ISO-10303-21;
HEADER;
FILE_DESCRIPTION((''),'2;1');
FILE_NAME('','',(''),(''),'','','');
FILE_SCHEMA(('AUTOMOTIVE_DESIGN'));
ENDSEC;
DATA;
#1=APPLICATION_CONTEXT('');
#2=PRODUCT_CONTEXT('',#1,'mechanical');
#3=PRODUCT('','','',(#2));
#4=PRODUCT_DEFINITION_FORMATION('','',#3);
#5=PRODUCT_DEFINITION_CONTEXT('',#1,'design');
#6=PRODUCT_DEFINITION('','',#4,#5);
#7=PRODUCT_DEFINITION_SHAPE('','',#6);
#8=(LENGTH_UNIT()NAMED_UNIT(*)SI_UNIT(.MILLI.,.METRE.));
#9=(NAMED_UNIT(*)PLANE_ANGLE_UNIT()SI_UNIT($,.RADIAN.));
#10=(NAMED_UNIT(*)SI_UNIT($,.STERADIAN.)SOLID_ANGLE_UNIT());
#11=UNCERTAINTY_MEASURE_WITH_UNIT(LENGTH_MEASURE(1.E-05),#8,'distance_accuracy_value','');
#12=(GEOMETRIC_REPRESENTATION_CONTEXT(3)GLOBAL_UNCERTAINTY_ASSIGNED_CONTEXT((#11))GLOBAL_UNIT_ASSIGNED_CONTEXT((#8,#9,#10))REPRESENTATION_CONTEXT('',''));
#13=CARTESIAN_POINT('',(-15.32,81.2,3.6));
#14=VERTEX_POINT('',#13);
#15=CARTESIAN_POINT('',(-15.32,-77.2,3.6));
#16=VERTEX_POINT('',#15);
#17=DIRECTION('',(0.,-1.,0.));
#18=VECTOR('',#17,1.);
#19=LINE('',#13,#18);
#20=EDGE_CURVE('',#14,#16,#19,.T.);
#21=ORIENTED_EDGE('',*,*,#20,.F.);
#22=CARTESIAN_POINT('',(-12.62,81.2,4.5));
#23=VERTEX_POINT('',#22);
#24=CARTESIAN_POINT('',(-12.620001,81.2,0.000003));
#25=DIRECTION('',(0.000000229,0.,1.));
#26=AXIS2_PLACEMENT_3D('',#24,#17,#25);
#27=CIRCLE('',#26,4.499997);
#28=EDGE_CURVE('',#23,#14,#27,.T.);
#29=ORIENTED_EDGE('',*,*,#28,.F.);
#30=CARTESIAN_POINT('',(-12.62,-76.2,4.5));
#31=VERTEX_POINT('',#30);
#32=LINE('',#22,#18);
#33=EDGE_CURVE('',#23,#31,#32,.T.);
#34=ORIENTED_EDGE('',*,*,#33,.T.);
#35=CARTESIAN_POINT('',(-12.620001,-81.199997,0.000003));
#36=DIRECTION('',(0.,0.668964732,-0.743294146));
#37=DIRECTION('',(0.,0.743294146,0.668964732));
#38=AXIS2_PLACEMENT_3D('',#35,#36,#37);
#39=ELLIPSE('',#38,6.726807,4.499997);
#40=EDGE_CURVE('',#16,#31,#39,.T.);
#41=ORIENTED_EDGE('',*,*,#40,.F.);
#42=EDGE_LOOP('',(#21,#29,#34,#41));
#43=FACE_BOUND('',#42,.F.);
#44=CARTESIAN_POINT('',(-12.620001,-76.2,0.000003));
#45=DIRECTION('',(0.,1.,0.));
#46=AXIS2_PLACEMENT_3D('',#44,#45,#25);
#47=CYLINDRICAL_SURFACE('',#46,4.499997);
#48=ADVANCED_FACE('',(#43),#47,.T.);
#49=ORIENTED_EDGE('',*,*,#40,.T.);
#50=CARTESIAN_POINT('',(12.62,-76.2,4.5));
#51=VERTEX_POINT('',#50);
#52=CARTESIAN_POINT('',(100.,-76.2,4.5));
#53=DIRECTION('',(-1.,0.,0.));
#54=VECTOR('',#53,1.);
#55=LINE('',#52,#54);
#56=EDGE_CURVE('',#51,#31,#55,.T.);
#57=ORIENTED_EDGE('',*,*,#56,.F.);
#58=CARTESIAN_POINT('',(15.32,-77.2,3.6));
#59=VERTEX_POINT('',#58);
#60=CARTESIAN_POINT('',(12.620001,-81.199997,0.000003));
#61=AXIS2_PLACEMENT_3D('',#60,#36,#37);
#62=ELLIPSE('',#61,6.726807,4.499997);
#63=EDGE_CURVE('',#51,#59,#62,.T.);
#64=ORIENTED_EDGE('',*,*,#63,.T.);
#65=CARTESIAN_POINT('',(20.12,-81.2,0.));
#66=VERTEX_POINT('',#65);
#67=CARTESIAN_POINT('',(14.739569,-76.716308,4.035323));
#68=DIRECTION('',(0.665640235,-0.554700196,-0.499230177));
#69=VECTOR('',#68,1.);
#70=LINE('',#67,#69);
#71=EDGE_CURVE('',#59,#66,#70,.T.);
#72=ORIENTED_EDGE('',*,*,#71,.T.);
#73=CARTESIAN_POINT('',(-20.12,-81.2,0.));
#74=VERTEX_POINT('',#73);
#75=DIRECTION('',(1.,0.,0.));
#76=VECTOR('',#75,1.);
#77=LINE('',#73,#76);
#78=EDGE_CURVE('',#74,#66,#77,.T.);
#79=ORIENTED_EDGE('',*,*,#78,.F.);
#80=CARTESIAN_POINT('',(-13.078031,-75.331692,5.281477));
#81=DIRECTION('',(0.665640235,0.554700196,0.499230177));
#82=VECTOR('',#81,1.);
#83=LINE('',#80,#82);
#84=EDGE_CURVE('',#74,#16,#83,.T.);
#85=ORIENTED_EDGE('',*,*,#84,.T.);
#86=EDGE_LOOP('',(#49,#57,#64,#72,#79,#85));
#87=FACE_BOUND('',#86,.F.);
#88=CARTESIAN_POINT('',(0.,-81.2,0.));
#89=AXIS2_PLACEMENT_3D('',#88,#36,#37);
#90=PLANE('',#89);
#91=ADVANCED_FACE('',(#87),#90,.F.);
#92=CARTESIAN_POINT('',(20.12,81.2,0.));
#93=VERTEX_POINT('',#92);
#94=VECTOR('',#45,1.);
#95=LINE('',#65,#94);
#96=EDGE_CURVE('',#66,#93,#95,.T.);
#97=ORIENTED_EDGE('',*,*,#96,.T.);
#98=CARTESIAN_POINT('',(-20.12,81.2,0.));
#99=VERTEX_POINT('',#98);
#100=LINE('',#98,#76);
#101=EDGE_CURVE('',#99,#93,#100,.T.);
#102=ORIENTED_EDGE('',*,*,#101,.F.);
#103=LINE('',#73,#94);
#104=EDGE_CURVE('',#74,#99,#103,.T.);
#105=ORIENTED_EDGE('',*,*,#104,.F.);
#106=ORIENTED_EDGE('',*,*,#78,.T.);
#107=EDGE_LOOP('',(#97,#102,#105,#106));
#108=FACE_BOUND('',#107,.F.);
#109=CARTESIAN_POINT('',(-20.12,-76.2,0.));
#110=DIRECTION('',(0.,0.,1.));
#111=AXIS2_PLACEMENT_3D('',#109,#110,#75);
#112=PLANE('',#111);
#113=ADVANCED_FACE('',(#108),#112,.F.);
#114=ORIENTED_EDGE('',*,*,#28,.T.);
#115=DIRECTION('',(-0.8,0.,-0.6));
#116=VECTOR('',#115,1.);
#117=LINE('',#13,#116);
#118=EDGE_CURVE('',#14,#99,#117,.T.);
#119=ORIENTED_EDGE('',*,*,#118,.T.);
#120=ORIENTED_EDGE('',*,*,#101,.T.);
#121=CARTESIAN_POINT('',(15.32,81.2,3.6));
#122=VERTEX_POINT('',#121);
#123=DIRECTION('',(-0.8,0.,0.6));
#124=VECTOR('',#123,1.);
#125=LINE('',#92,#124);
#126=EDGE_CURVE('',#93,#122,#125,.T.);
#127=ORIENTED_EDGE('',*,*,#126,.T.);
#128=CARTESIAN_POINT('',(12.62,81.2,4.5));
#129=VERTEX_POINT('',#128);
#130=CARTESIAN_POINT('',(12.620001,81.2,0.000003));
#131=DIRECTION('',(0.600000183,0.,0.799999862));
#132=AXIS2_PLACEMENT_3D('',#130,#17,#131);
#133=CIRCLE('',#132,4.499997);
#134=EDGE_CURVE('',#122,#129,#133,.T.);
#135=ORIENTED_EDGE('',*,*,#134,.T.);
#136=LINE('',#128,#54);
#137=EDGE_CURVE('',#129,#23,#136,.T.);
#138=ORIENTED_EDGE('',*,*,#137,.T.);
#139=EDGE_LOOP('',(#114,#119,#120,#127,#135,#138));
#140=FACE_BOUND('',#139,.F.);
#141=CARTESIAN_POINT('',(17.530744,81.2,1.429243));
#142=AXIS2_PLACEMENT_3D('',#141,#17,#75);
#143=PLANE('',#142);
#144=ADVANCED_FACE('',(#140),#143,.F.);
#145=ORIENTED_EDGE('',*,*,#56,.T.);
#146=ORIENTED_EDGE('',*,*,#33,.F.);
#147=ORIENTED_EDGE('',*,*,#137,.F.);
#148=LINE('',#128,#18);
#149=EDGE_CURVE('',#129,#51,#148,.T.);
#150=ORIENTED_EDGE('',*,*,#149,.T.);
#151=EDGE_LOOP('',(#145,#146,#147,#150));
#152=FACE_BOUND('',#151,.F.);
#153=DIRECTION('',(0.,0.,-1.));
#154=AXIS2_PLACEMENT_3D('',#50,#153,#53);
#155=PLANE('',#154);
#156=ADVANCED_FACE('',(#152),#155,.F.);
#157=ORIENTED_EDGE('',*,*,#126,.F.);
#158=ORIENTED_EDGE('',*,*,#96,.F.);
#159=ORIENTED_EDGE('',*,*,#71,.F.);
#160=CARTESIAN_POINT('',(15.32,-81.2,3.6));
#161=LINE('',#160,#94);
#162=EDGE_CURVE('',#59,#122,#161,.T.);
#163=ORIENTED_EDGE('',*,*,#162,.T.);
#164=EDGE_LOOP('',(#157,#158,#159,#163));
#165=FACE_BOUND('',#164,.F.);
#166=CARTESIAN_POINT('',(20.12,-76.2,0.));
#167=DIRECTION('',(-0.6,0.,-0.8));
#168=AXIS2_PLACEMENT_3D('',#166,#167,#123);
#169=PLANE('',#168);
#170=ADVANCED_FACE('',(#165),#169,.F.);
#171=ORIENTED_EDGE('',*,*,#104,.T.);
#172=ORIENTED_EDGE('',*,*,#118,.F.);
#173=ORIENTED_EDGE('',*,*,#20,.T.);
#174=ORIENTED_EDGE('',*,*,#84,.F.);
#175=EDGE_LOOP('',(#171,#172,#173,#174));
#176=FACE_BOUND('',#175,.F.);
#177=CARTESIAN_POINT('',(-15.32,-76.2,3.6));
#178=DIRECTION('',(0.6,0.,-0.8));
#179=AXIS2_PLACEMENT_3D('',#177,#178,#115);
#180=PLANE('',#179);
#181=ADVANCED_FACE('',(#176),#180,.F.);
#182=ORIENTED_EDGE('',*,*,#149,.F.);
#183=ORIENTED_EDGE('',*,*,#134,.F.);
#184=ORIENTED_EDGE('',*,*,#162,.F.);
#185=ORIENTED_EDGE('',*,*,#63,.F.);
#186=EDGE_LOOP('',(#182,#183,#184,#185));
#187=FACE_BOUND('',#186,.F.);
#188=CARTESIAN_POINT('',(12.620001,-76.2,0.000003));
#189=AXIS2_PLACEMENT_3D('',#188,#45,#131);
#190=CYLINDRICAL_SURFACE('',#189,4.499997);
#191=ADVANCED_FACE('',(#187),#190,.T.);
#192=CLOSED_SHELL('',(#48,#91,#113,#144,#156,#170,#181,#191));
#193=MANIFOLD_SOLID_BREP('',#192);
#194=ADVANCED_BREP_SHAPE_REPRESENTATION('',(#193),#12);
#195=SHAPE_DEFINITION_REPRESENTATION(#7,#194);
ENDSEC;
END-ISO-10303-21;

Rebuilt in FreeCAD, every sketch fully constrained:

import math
import FreeCAD as App
import Part
import Sketcher
from FreeCAD import Vector
Q = App.Units.Quantity

doc = App.newDocument("Part")
body = doc.addObject("PartDesign::Body", "Body")

sketch1 = body.newObject("Sketcher::SketchObject", "Sketch")
sketch1.AttachmentSupport = (doc.getObject("XZ_Plane"), [""])
sketch1.MapMode = "FlatFace"
sketch1.AttachmentOffset = App.Placement(Vector(0, 0, 76.2), App.Rotation())
sketch1.addGeometry([
    Part.LineSegment(Vector(20.1, 0, 0), Vector(15.3, 3.6, 0)),
    Part.ArcOfCircle(Part.Circle(Vector(12.6, 0, 0), Vector(0, 0, 1), 4.5), math.radians(53), math.radians(90)),
    Part.LineSegment(Vector(12.6, 4.5, 0), Vector(-12.6, 4.5, 0)),
    Part.ArcOfCircle(Part.Circle(Vector(-12.6, 0, 0), Vector(0, 0, 1), 4.5), math.radians(90), math.radians(127)),
    Part.LineSegment(Vector(-15.3, 3.6, 0), Vector(-20.1, 0, 0)),
    Part.LineSegment(Vector(-20.1, 0, 0), Vector(20.1, 0, 0)),
], False)
sketch1.addConstraint([
    Sketcher.Constraint("Tangent", 0, 2, 1, 1),
    Sketcher.Constraint("Tangent", 1, 2, 2, 1),
    Sketcher.Constraint("Tangent", 2, 2, 3, 1),
    Sketcher.Constraint("Tangent", 3, 2, 4, 1),
    Sketcher.Constraint("Coincident", 4, 2, 5, 1),
    Sketcher.Constraint("Coincident", 5, 2, 0, 1),
    Sketcher.Constraint("Horizontal", 2),
    Sketcher.Constraint("Horizontal", 5),
    Sketcher.Constraint("Equal", 1, 3),
    Sketcher.Constraint("Symmetric", 1, 3, 3, 3, -1, 1),
    Sketcher.Constraint("Symmetric", 4, 2, 5, 2, -1, 1),
    Sketcher.Constraint("Distance", 0, Q("6 mm")),
    Sketcher.Constraint("DistanceX", 2, 2, 2, 1, Q("25.24 mm")),
    Sketcher.Constraint("DistanceX", 5, 1, 5, 2, Q("40.24 mm")),
])
pad1 = body.newObject("PartDesign::Pad", "Pad")
pad1.Profile = sketch1
pad1.Length = 157.4
pad1.Reversed = True

sketch2 = body.newObject("Sketcher::SketchObject", "Sketch001")
sketch2.AttachmentSupport = (doc.getObject("XZ_Plane"), [""])
sketch2.MapMode = "FlatFace"
sketch2.AttachmentOffset = App.Placement(Vector(0, 0, 76.2), App.Rotation())
sketch2.addGeometry([
    Part.ArcOfCircle(Part.Circle(Vector(12.6, 0, 0), Vector(0, 0, 1), 4.5), math.radians(53), math.radians(90)),
    Part.LineSegment(Vector(12.6, 4.5, 0), Vector(-12.6, 4.5, 0)),
    Part.ArcOfCircle(Part.Circle(Vector(-12.6, 0, 0), Vector(0, 0, 1), 4.5), math.radians(90), math.radians(127)),
    Part.LineSegment(Vector(-15.3, 3.6, 0), Vector(-20.1, 0, 0)),
    Part.LineSegment(Vector(-20.1, 0, 0), Vector(20.1, 0, 0)),
    Part.LineSegment(Vector(20.1, 0, 0), Vector(15.3, 3.6, 0)),
], False)
sketch2.addConstraint([
    Sketcher.Constraint("Tangent", 0, 2, 1, 1),
    Sketcher.Constraint("Tangent", 1, 2, 2, 1),
    Sketcher.Constraint("Tangent", 2, 2, 3, 1),
    Sketcher.Constraint("Coincident", 3, 2, 4, 1),
    Sketcher.Constraint("Coincident", 4, 2, 5, 1),
    Sketcher.Constraint("Tangent", 5, 2, 0, 1),
    Sketcher.Constraint("Horizontal", 1),
    Sketcher.Constraint("Horizontal", 4),
    Sketcher.Constraint("Equal", 0, 2),
    Sketcher.Constraint("Symmetric", 0, 3, 2, 3, -1, 1),
    Sketcher.Constraint("Symmetric", 3, 2, 4, 2, -1, 1),
    Sketcher.Constraint("Distance", 3, Q("6 mm")),
    Sketcher.Constraint("DistanceX", 1, 2, 1, 1, Q("25.24 mm")),
    Sketcher.Constraint("DistanceX", 4, 1, 4, 2, Q("40.24 mm")),
])
pad2 = body.newObject("PartDesign::Pad", "Pad001")
pad2.Profile = sketch2
pad2.Length = 5

sketch3 = body.newObject("Sketcher::SketchObject", "Sketch002")
sketch3.AttachmentSupport = (doc.getObject("YZ_Plane"), [""])
sketch3.MapMode = "FlatFace"
sketch3.addGeometry([
    Part.LineSegment(Vector(-81.2, 4.5, 0), Vector(-81.2, 0, 0)),
    Part.LineSegment(Vector(-81.2, 0, 0), Vector(-76.2, 4.5, 0)),
    Part.LineSegment(Vector(-76.2, 4.5, 0), Vector(-81.2, 4.5, 0)),
], False)
sketch3.addConstraint([
    Sketcher.Constraint("Coincident", 0, 2, 1, 1),
    Sketcher.Constraint("Coincident", 1, 2, 2, 1),
    Sketcher.Constraint("Coincident", 2, 2, 0, 1),
    Sketcher.Constraint("Vertical", 0),
    Sketcher.Constraint("Horizontal", 2),
    Sketcher.Constraint("PointOnObject", 0, 2, -1),
    Sketcher.Constraint("DistanceX", 2, 2, 2, 1, Q("5 mm")),
    Sketcher.Constraint("DistanceY", 0, 2, 0, 1, Q("4.5 mm")),
    Sketcher.Constraint("DistanceX", 0, 2, -1, 1, Q("81.2 mm")),
])
pocket1 = body.newObject("PartDesign::Pocket", "Pocket")
pocket1.Profile = sketch3
pocket1.Length = 200
pocket1.Midplane = True

doc.recompute()
